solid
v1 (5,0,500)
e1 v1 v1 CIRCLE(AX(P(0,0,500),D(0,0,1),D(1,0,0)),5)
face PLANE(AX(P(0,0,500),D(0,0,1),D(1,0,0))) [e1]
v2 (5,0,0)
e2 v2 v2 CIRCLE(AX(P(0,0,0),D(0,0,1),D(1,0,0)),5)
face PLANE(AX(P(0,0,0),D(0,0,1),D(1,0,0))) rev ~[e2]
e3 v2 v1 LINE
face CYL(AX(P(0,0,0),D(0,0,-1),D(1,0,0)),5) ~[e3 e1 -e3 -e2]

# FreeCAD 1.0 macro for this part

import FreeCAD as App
import Part
import Sketcher

V = App.Vector
Q = App.Units.Quantity

doc = App.newDocument("Part")
params = doc.addObject("Spreadsheet::Sheet", "Params")
for row, (alias, value) in enumerate([
    ("sketch1_diameter", "10 mm"),
    ("pad1_length", "500 mm"),
], start=1):
    params.set(f"A{row}", alias)
    params.set(f"B{row}", "=" + value)
    params.setAlias(f"B{row}", alias)

body = doc.addObject("PartDesign::Body", "Body")

# Sketch on XY plane
sketch1 = body.newObject("Sketcher::SketchObject", "Sketch")
sketch1.AttachmentSupport = (doc.getObject("XY_Plane"), [""])
sketch1.MapMode = "FlatFace"
sketch1.addGeometry(Part.Circle(V(0, 0, 0), V(0, 0, 1), 5), False)
sketch1.addConstraint([
    Sketcher.Constraint("Coincident", 0, 3, -1, 1),
    Sketcher.Constraint("Diameter", 0, Q("10 mm")),
])
sketch1.setExpression("Constraints[1]", "Params.sketch1_diameter")
pad1 = body.newObject("PartDesign::Pad", "Pad")
pad1.Profile = sketch1
pad1.setExpression("Length", "Params.pad1_length")

doc.recompute()
